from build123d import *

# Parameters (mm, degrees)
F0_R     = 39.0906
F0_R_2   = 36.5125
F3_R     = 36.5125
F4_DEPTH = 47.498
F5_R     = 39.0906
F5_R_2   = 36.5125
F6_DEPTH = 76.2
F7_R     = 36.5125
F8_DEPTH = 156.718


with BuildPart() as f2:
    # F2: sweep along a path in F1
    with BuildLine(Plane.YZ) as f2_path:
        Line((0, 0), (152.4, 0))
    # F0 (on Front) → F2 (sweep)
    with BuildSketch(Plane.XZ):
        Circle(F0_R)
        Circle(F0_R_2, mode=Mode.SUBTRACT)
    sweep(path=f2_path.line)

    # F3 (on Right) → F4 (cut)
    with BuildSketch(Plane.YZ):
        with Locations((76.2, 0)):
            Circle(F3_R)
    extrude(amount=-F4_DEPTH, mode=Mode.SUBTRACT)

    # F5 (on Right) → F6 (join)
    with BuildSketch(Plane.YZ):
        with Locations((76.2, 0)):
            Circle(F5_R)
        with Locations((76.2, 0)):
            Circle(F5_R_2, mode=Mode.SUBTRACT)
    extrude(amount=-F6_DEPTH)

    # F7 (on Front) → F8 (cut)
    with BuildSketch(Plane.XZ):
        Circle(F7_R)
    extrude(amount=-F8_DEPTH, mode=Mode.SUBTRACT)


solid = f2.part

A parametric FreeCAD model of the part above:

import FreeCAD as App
import Part
import Sketcher
from FreeCAD import Vector
Q = App.Units.Quantity

doc = App.newDocument("Part")
body = doc.addObject("PartDesign::Body", "Body")

# Sketch on XZ plane
sketch1 = body.newObject("Sketcher::SketchObject", "Sketch")
sketch1.AttachmentSupport = (doc.getObject("XZ_Plane"), [""])
sketch1.MapMode = "FlatFace"
sketch1.addGeometry(Part.Circle(Vector(0, 0, 0), Vector(0, 0, 1), 39.0906), False)
sketch1.addGeometry(Part.Circle(Vector(0, 0, 0), Vector(0, 0, 1), 36.5125), False)
sketch1.addConstraint(Sketcher.Constraint("Coincident", 0, 3, -1, 1))
sketch1.addConstraint(Sketcher.Constraint("Coincident", 1, 3, -1, 1))
sketch1.addConstraint(Sketcher.Constraint("Diameter", 0, Q("3.078 in")))
sketch1.addConstraint(Sketcher.Constraint("Diameter", 1, Q("2.875 in")))

# Sketch on XY plane
sketch2 = body.newObject("Sketcher::SketchObject", "Sketch001")
sketch2.AttachmentSupport = (doc.getObject("XY_Plane"), [""])
sketch2.MapMode = "FlatFace"
sketch2.addGeometry(Part.LineSegment(Vector(0, 0, 0), Vector(0, 152.4, 0)), False)
sketch2.addConstraint(Sketcher.Constraint("Vertical", 0))
sketch2.addConstraint(Sketcher.Constraint("Coincident", 0, 1, -1, 1))
sketch2.addConstraint(Sketcher.Constraint("DistanceY", 0, 1, 0, 2, Q("6 in")))
doc.recompute()

additivepipe = body.newObject("PartDesign::AdditivePipe", "AdditivePipe")
additivepipe.Profile = sketch1
additivepipe.Spine = (sketch2, ["Edge1"])

# Sketch on YZ plane
sketch3 = body.newObject("Sketcher::SketchObject", "Sketch002")
sketch3.AttachmentSupport = (doc.getObject("YZ_Plane"), [""])
sketch3.MapMode = "FlatFace"
sketch3.addGeometry(Part.Circle(Vector(76.2, 0, 0), Vector(0, 0, 1), 36.5125), False)
sketch3.addConstraint(Sketcher.Constraint("PointOnObject", 0, 3, -1))
sketch3.addConstraint(Sketcher.Constraint("Diameter", 0, Q("2.875 in")))
sketch3.addConstraint(Sketcher.Constraint("DistanceX", -1, 1, 0, 3, Q("3 in")))
pocket1 = body.newObject("PartDesign::Pocket", "Pocket")
pocket1.Profile = sketch3
pocket1.Length = Q("1.87 in")

# Sketch on YZ plane
sketch4 = body.newObject("Sketcher::SketchObject", "Sketch003")
sketch4.AttachmentSupport = (doc.getObject("YZ_Plane"), [""])
sketch4.MapMode = "FlatFace"
sketch4.addGeometry(Part.Circle(Vector(76.2, 0, 0), Vector(0, 0, 1), 39.0906), False)
sketch4.addGeometry(Part.Circle(Vector(76.2, 0, 0), Vector(0, 0, 1), 36.5125), False)
sketch4.addConstraint(Sketcher.Constraint("Coincident", 1, 3, 0, 3))
sketch4.addConstraint(Sketcher.Constraint("PointOnObject", 0, 3, -1))
sketch4.addConstraint(Sketcher.Constraint("Diameter", 0, Q("3.078 in")))
sketch4.addConstraint(Sketcher.Constraint("Diameter", 1, Q("2.875 in")))
sketch4.addConstraint(Sketcher.Constraint("DistanceX", -1, 1, 0, 3, Q("3 in")))
pad1 = body.newObject("PartDesign::Pad", "Pad")
pad1.Profile = sketch4
pad1.Length = Q("3 in")
pad1.Reversed = True

# Sketch on XZ plane
sketch5 = body.newObject("Sketcher::SketchObject", "Sketch004")
sketch5.AttachmentSupport = (doc.getObject("XZ_Plane"), [""])
sketch5.MapMode = "FlatFace"
sketch5.addGeometry(Part.Circle(Vector(0, 0, 0), Vector(0, 0, 1), 36.5125), False)
sketch5.addConstraint(Sketcher.Constraint("Coincident", 0, 3, -1, 1))
sketch5.addConstraint(Sketcher.Constraint("Diameter", 0, Q("2.875 in")))
pocket2 = body.newObject("PartDesign::Pocket", "Pocket001")
pocket2.Profile = sketch5
pocket2.Length = Q("6.17 in")

doc.recompute()
